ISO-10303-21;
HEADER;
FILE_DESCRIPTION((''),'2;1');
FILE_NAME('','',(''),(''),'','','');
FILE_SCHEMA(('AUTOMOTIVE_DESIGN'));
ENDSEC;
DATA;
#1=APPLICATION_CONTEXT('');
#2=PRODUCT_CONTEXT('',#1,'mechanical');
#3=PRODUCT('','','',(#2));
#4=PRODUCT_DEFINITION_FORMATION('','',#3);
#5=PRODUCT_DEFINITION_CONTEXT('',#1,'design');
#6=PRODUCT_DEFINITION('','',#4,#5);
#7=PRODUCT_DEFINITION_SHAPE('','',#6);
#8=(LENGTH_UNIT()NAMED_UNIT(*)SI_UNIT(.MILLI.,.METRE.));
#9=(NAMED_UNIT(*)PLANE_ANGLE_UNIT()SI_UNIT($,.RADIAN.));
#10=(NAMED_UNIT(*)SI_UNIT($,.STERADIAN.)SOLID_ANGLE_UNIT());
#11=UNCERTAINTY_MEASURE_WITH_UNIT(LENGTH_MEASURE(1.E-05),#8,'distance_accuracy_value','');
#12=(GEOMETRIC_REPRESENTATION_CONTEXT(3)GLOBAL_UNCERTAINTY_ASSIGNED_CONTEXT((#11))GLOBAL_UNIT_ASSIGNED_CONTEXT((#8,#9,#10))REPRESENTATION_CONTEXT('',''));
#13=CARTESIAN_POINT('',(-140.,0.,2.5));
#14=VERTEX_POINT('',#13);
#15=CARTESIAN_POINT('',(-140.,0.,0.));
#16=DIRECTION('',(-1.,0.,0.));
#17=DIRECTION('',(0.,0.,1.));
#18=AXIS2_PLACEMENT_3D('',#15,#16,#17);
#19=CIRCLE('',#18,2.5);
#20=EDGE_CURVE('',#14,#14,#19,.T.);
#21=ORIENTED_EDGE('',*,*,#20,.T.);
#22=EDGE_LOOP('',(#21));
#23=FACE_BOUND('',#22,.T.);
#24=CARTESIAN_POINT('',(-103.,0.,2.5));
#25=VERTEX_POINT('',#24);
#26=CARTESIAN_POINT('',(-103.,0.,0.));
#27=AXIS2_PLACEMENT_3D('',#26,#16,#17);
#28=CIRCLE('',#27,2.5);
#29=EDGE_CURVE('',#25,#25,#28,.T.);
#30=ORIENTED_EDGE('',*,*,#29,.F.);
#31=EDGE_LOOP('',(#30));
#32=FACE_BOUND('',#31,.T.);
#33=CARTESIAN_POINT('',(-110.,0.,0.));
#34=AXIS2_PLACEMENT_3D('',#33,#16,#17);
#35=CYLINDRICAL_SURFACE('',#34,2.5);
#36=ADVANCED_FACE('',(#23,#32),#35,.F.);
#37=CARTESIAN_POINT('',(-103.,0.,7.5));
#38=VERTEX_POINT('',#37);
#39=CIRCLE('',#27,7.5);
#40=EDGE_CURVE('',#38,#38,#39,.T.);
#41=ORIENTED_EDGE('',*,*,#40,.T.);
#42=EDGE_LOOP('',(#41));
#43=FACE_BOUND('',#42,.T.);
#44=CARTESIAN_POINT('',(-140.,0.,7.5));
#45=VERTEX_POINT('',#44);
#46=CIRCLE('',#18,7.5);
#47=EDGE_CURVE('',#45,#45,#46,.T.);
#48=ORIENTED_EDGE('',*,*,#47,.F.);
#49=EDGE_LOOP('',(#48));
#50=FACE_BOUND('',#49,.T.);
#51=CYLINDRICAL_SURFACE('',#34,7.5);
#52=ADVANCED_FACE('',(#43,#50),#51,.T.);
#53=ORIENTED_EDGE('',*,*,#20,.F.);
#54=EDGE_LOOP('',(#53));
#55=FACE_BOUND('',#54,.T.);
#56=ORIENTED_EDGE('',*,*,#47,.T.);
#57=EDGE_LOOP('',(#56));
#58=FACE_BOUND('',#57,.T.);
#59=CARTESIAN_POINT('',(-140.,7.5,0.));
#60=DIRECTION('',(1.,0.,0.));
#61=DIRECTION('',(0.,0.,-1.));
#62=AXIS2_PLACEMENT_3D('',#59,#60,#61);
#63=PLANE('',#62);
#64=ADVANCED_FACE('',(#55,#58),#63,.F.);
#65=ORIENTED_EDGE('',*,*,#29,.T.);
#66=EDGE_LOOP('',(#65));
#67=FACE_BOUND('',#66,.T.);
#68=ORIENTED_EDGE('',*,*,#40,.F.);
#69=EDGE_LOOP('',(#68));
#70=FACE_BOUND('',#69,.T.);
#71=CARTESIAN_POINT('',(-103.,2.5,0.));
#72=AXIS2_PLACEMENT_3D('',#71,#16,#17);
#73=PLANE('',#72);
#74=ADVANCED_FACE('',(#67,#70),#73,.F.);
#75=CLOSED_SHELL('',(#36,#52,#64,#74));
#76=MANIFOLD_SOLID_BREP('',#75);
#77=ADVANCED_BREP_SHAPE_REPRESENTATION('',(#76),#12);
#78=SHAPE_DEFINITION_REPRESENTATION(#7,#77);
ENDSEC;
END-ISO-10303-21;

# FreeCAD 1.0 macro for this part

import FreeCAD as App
import Part
import Sketcher
Q = App.Units.Quantity


def add_polygon(sketch, points):
    """Adds a closed chain of lines whose ends are joined by coincident constraints."""
    first, n = sketch.GeometryCount, len(points)
    for a, b in zip(points, points[1:] + points[:1]):
        sketch.addGeometry(Part.LineSegment(App.Vector(*a, 0), App.Vector(*b, 0)), False)
    for i in range(n):
        sketch.addConstraint(Sketcher.Constraint("Coincident", first + i, 2, first + (i + 1) % n, 1))

doc = App.newDocument("Part")
body = doc.addObject("PartDesign::Body", "Body")

sketch1 = body.newObject("Sketcher::SketchObject", "Sketch")
sketch1.AttachmentSupport = (doc.getObject("XY_Plane"), [""])
sketch1.MapMode = "FlatFace"
add_polygon(sketch1, [(-140, 8), (-140, 2), (-103, 2), (-103, 8)])
sketch1.addConstraint(Sketcher.Constraint("Vertical", 0))
sketch1.addConstraint(Sketcher.Constraint("Horizontal", 1))
sketch1.addConstraint(Sketcher.Constraint("Vertical", 2))
sketch1.addConstraint(Sketcher.Constraint("Horizontal", 3))
sketch1.addConstraint(Sketcher.Constraint("DistanceX", 1, 1, 1, 2, Q("37 mm")))
sketch1.addConstraint(Sketcher.Constraint("DistanceY", 0, 2, 0, 1, Q("5 mm")))
sketch1.addConstraint(Sketcher.Constraint("DistanceX", 0, 2, -1, 1, Q("140 mm")))
sketch1.addConstraint(Sketcher.Constraint("DistanceY", -1, 1, 0, 2, Q("2.5 mm")))
revolution = body.newObject("PartDesign::Revolution", "Revolution")
revolution.Profile = sketch1
revolution.ReferenceAxis = (sketch1, ["H_Axis"])
revolution.Angle = 360

doc.recompute()
